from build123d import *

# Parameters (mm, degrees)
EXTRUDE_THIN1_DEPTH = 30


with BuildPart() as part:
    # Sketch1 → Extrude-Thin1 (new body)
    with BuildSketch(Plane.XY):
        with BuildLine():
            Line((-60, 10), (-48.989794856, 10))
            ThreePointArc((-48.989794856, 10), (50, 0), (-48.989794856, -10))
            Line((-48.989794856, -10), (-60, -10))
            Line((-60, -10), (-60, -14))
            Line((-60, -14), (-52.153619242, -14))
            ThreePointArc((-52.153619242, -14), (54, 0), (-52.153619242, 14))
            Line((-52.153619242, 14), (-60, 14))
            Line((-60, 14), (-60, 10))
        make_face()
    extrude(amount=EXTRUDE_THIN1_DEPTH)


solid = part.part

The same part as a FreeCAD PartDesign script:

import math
import FreeCAD as App
import Part
import Sketcher

doc = App.newDocument("Part")
params = doc.addObject("Spreadsheet::Sheet", "Params")
for row, (alias, value) in enumerate([
    ("sketch1_radius", "50 mm"),
    ("sketch1_radius2", "54 mm"),
    ("sketch1_height", "4 mm"),
    ("pad1_length", "30 mm"),
], start=1):
    params.set(f"A{row}", alias)
    params.set(f"B{row}", "=" + value)
    params.setAlias(f"B{row}", alias)

body = doc.addObject("PartDesign::Body", "Body")

# Sketch on XY plane
sketch1 = body.newObject("Sketcher::SketchObject", "Sketch")
sketch1.AttachmentSupport = (doc.getObject("XY_Plane"), [""])
sketch1.MapMode = "FlatFace"
sketch1.addGeometry([
    Part.LineSegment(App.Vector(-60, 10, 0), App.Vector(-48.989795, 10, 0)),  # 0
    Part.ArcOfCircle(Part.Circle(App.Vector(0, 0, 0), App.Vector(0, 0, 1), 50), math.radians(-168.463041), math.radians(168.463041)),  # 1
    Part.LineSegment(App.Vector(-48.989795, -10, 0), App.Vector(-60, -10, 0)),  # 2
    Part.LineSegment(App.Vector(-60, -10, 0), App.Vector(-60, -14, 0)),  # 3
    Part.LineSegment(App.Vector(-60, -14, 0), App.Vector(-52.153619, -14, 0)),  # 4
    Part.ArcOfCircle(Part.Circle(App.Vector(0, 0, 0), App.Vector(0, 0, 1), 54), math.radians(-164.973886), math.radians(164.973886)),  # 5
    Part.LineSegment(App.Vector(-52.153619, 14, 0), App.Vector(-60, 14, 0)),  # 6
    Part.LineSegment(App.Vector(-60, 14, 0), App.Vector(-60, 10, 0)),  # 7
], False)
sketch1.addConstraint([
    Sketcher.Constraint("Coincident", 0, 2, 1, 2),
    Sketcher.Constraint("Coincident", 1, 1, 2, 1),
    Sketcher.Constraint("Coincident", 2, 2, 3, 1),
    Sketcher.Constraint("Coincident", 3, 2, 4, 1),
    Sketcher.Constraint("Coincident", 4, 2, 5, 1),
    Sketcher.Constraint("Coincident", 5, 2, 6, 1),
    Sketcher.Constraint("Coincident", 6, 2, 7, 1),
    Sketcher.Constraint("Coincident", 7, 2, 0, 1),
    Sketcher.Constraint("Horizontal", 0),
    Sketcher.Constraint("Horizontal", 2),
    Sketcher.Constraint("Vertical", 3),
    Sketcher.Constraint("Horizontal", 4),
    Sketcher.Constraint("Horizontal", 6),
    Sketcher.Constraint("Vertical", 7),
    Sketcher.Constraint("Coincident", 1, 3, -1, 1),
    Sketcher.Constraint("Coincident", 5, 3, -1, 1),
    Sketcher.Constraint("Symmetric", 3, 2, 6, 2, -1),
    Sketcher.Constraint("Vertical", 0, 2, 1, 1),
    Sketcher.Constraint("Radius", 1, 50.0),
    Sketcher.Constraint("Radius", 5, 54.0),
    Sketcher.Constraint("DistanceY", 3, 2, 3, 1, 4.0),
    Sketcher.Constraint("DistanceY", -1, 1, 0, 2, 10.0),
    Sketcher.Constraint("DistanceX", 2, 2, -1, 1, 60.0),
])
sketch1.setExpression("Constraints[18]", "Params.sketch1_radius")
sketch1.setExpression("Constraints[19]", "Params.sketch1_radius2")
sketch1.setExpression("Constraints[20]", "Params.sketch1_height")
pad1 = body.newObject("PartDesign::Pad", "Pad")
pad1.Profile = sketch1
pad1.setExpression("Length", "Params.pad1_length")

doc.recompute()
